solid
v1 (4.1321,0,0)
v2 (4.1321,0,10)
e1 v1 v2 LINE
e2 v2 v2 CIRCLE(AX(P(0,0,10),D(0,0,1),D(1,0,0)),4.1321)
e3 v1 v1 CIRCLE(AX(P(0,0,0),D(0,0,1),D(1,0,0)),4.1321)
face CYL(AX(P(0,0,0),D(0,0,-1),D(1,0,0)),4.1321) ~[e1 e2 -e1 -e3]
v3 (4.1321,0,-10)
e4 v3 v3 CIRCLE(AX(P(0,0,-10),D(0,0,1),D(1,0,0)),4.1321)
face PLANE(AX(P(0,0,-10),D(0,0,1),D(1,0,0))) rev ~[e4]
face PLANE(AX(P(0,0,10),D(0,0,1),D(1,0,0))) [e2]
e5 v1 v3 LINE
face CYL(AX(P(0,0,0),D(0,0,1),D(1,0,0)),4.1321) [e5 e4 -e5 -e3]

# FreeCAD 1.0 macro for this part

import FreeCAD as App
import Part
import Sketcher

V = App.Vector

doc = App.newDocument("Part")
params = doc.addObject("Spreadsheet::Sheet", "Params")
for row, (alias, value) in enumerate([
    ("pad1_length", "20 mm"),
], start=1):
    params.set(f"A{row}", alias)
    params.set(f"B{row}", "=" + value)
    params.setAlias(f"B{row}", alias)

body = doc.addObject("PartDesign::Body", "Body")

# Sketch on XY plane
sketch1 = doc.addObject("Sketcher::SketchObject", "Sketch")
body.addObject(sketch1)
sketch1.AttachmentSupport = (doc.XY_Plane, [""])
sketch1.MapMode = "FlatFace"
sketch1.addGeometry(Part.Circle(V(0, 0, 0), V(0, 0, 1), 4.1), False)
sketch1.addConstraint([
    Sketcher.Constraint("Coincident", 0, 3, -1, 1),
    Sketcher.Constraint("Diameter", 0, 8.2642),
])
pad1 = doc.addObject("PartDesign::Pad", "Pad")
body.addObject(pad1)
pad1.Profile = sketch1
pad1.setExpression("Length", "Params.pad1_length")
pad1.Midplane = True

doc.recompute()
